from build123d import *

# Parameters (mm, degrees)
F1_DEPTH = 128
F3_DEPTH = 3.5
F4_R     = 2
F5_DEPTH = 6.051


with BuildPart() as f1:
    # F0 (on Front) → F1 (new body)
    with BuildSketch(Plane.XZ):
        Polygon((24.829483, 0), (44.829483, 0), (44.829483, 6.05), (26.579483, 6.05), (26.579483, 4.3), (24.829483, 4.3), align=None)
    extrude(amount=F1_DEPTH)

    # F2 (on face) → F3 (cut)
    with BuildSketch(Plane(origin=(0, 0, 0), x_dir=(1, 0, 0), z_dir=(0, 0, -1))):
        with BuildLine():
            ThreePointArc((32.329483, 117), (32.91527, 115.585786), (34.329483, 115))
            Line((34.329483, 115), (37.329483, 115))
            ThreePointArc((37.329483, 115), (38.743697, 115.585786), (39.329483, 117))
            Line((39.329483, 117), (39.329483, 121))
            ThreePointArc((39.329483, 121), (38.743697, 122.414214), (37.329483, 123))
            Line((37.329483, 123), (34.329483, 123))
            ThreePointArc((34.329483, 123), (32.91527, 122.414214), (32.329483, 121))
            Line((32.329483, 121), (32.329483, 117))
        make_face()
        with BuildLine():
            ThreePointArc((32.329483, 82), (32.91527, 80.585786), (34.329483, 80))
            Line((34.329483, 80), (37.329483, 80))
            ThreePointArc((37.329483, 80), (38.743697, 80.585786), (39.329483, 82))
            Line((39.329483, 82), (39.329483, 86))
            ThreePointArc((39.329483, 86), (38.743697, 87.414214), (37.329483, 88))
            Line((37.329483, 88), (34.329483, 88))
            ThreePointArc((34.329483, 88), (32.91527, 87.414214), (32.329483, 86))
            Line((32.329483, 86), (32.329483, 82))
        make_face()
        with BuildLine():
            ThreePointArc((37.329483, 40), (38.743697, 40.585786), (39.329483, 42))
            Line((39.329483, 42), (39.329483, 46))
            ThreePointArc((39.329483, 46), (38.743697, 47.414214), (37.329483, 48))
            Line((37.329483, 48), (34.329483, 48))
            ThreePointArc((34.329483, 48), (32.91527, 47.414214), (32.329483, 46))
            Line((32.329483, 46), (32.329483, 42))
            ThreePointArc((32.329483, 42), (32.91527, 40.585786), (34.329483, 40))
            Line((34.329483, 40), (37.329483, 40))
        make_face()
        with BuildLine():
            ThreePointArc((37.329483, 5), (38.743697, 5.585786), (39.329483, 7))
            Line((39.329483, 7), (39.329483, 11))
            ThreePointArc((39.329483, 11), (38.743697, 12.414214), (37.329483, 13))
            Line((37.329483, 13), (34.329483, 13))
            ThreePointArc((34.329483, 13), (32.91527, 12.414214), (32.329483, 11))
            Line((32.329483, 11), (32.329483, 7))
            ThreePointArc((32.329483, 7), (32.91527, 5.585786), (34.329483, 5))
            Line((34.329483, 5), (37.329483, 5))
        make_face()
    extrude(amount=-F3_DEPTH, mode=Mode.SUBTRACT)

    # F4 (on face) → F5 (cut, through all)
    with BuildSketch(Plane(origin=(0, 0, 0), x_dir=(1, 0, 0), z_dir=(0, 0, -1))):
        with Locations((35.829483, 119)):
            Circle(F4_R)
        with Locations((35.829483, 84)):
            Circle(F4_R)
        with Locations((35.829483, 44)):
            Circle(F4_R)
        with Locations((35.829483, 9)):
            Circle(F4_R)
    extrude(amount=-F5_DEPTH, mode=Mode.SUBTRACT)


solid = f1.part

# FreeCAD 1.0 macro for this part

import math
import FreeCAD as App
import Part
import Sketcher
from FreeCAD import Vector


def add_polygon(sketch, points):
    """Adds a closed chain of lines whose ends are joined by coincident constraints."""
    first, n = sketch.GeometryCount, len(points)
    for a, b in zip(points, points[1:] + points[:1]):
        sketch.addGeometry(Part.LineSegment(App.Vector(*a, 0), App.Vector(*b, 0)), False)
    for i in range(n):
        sketch.addConstraint(Sketcher.Constraint("Coincident", first + i, 2, first + (i + 1) % n, 1))

doc = App.newDocument("Part")
params = doc.addObject("Spreadsheet::Sheet", "Params")
for row, (alias, value) in enumerate([
    ("sketch1_width", "20 mm"),
    ("sketch1_height", "4.3 mm"),
    ("sketch1_width2", "18.25 mm"),
    ("pad1_length", "128 mm"),
    ("sketch2_radius", "2 mm"),
    ("sketch2_width", "3 mm"),
    ("sketch2_height", "4 mm"),
    ("pocket1_length", "3.5 mm"),
    ("sketch3_diameter", "4 mm"),
], start=1):
    params.set(f"A{row}", alias)
    params.set(f"B{row}", "=" + value)
    params.setAlias(f"B{row}", alias)

body = doc.addObject("PartDesign::Body", "Body")

# Sketch on XZ plane
sketch1 = body.newObject("Sketcher::SketchObject", "Sketch")
sketch1.AttachmentSupport = (doc.getObject("XZ_Plane"), [""])
sketch1.MapMode = "FlatFace"
add_polygon(sketch1, [(24.8, 0), (44.8, 0), (44.8, 6), (26.6, 6), (26.6, 4.3), (24.8, 4.3)])  # lines 0-5
sketch1.addConstraint(Sketcher.Constraint("Horizontal", 0))
sketch1.addConstraint(Sketcher.Constraint("Vertical", 1))
sketch1.addConstraint(Sketcher.Constraint("Horizontal", 2))
sketch1.addConstraint(Sketcher.Constraint("Vertical", 3))
sketch1.addConstraint(Sketcher.Constraint("Horizontal", 4))
sketch1.addConstraint(Sketcher.Constraint("Vertical", 5))
sketch1.addConstraint(Sketcher.Constraint("PointOnObject", 0, 2, -1))
sketch1.addConstraint(Sketcher.Constraint("Equal", 4, 3))
sketch1.addConstraint(Sketcher.Constraint("DistanceX", 0, 1, 0, 2, 20.0))
sketch1.addConstraint(Sketcher.Constraint("DistanceY", 5, 2, 5, 1, 4.3))
sketch1.addConstraint(Sketcher.Constraint("DistanceX", 2, 2, 2, 1, 18.25))
sketch1.addConstraint(Sketcher.Constraint("DistanceX", -1, 1, 0, 2, 44.829483))
sketch1.setExpression("Constraints[14]", "Params.sketch1_width")
sketch1.setExpression("Constraints[15]", "Params.sketch1_height")
sketch1.setExpression("Constraints[16]", "Params.sketch1_width2")
pad1 = body.newObject("PartDesign::Pad", "Pad")
pad1.Profile = sketch1
pad1.setExpression("Length", "Params.pad1_length")

# Sketch on XY plane
sketch2 = body.newObject("Sketcher::SketchObject", "Sketch001")
sketch2.AttachmentSupport = (doc.getObject("XY_Plane"), [""])
sketch2.MapMode = "FlatFace"
sketch2.addGeometry(Part.ArcOfCircle(Part.Circle(Vector(34.3, -117, 0), Vector(0, 0, 1), 2), math.radians(90), math.radians(180)), False)
sketch2.addGeometry(Part.LineSegment(Vector(34.3, -115, 0), Vector(37.3, -115, 0)), False)
sketch2.addGeometry(Part.ArcOfCircle(Part.Circle(Vector(37.3, -117, 0), Vector(0, 0, 1), 2), math.radians(0), math.radians(90)), False)
sketch2.addGeometry(Part.LineSegment(Vector(39.3, -117, 0), Vector(39.3, -121, 0)), False)
sketch2.addGeometry(Part.ArcOfCircle(Part.Circle(Vector(37.3, -121, 0), Vector(0, 0, 1), 2), math.radians(-90), math.radians(0)), False)
sketch2.addGeometry(Part.LineSegment(Vector(37.3, -123, 0), Vector(34.3, -123, 0)), False)
sketch2.addGeometry(Part.ArcOfCircle(Part.Circle(Vector(34.3, -121, 0), Vector(0, 0, 1), 2), math.radians(-180), math.radians(-90)), False)
sketch2.addGeometry(Part.LineSegment(Vector(32.3, -121, 0), Vector(32.3, -117, 0)), False)
sketch2.addGeometry(Part.ArcOfCircle(Part.Circle(Vector(34.3, -82, 0), Vector(0, 0, 1), 2), math.radians(90), math.radians(180)), False)
sketch2.addGeometry(Part.LineSegment(Vector(34.3, -80, 0), Vector(37.3, -80, 0)), False)
sketch2.addGeometry(Part.ArcOfCircle(Part.Circle(Vector(37.3, -82, 0), Vector(0, 0, 1), 2), math.radians(0), math.radians(90)), False)
sketch2.addGeometry(Part.LineSegment(Vector(39.3, -82, 0), Vector(39.3, -86, 0)), False)
sketch2.addGeometry(Part.ArcOfCircle(Part.Circle(Vector(37.3, -86, 0), Vector(0, 0, 1), 2), math.radians(-90), math.radians(0)), False)
sketch2.addGeometry(Part.LineSegment(Vector(37.3, -88, 0), Vector(34.3, -88, 0)), False)
sketch2.addGeometry(Part.ArcOfCircle(Part.Circle(Vector(34.3, -86, 0), Vector(0, 0, 1), 2), math.radians(-180), math.radians(-90)), False)
sketch2.addGeometry(Part.LineSegment(Vector(32.3, -86, 0), Vector(32.3, -82, 0)), False)
sketch2.addGeometry(Part.ArcOfCircle(Part.Circle(Vector(37.3, -42, 0), Vector(0, 0, 1), 2), math.radians(0), math.radians(90)), False)
sketch2.addGeometry(Part.LineSegment(Vector(39.3, -42, 0), Vector(39.3, -46, 0)), False)
sketch2.addGeometry(Part.ArcOfCircle(Part.Circle(Vector(37.3, -46, 0), Vector(0, 0, 1), 2), math.radians(-90), math.radians(0)), False)
sketch2.addGeometry(Part.LineSegment(Vector(37.3, -48, 0), Vector(34.3, -48, 0)), False)
sketch2.addGeometry(Part.ArcOfCircle(Part.Circle(Vector(34.3, -46, 0), Vector(0, 0, 1), 2), math.radians(-180), math.radians(-90)), False)
sketch2.addGeometry(Part.LineSegment(Vector(32.3, -46, 0), Vector(32.3, -42, 0)), False)
sketch2.addGeometry(Part.ArcOfCircle(Part.Circle(Vector(34.3, -42, 0), Vector(0, 0, 1), 2), math.radians(90), math.radians(180)), False)
sketch2.addGeometry(Part.LineSegment(Vector(34.3, -40, 0), Vector(37.3, -40, 0)), False)
sketch2.addGeometry(Part.ArcOfCircle(Part.Circle(Vector(37.3, -7, 0), Vector(0, 0, 1), 2), math.radians(0), math.radians(90)), False)
sketch2.addGeometry(Part.LineSegment(Vector(39.3, -7, 0), Vector(39.3, -11, 0)), False)
sketch2.addGeometry(Part.ArcOfCircle(Part.Circle(Vector(37.3, -11, 0), Vector(0, 0, 1), 2), math.radians(-90), math.radians(0)), False)
sketch2.addGeometry(Part.LineSegment(Vector(37.3, -13, 0), Vector(34.3, -13, 0)), False)
sketch2.addGeometry(Part.ArcOfCircle(Part.Circle(Vector(34.3, -11, 0), Vector(0, 0, 1), 2), math.radians(-180), math.radians(-90)), False)
sketch2.addGeometry(Part.LineSegment(Vector(32.3, -11, 0), Vector(32.3, -7, 0)), False)
sketch2.addGeometry(Part.ArcOfCircle(Part.Circle(Vector(34.3, -7, 0), Vector(0, 0, 1), 2), math.radians(90), math.radians(180)), False)
sketch2.addGeometry(Part.LineSegment(Vector(34.3, -5, 0), Vector(37.3, -5, 0)), False)
sketch2.addConstraint(Sketcher.Constraint("Tangent", 0, 1, 1, 1))
sketch2.addConstraint(Sketcher.Constraint("Tangent", 1, 2, 2, 2))
sketch2.addConstraint(Sketcher.Constraint("Tangent", 2, 1, 3, 1))
sketch2.addConstraint(Sketcher.Constraint("Tangent", 3, 2, 4, 2))
sketch2.addConstraint(Sketcher.Constraint("Tangent", 4, 1, 5, 1))
sketch2.addConstraint(Sketcher.Constraint("Tangent", 5, 2, 6, 2))
sketch2.addConstraint(Sketcher.Constraint("Tangent", 6, 1, 7, 1))
sketch2.addConstraint(Sketcher.Constraint("Tangent", 7, 2, 0, 2))
sketch2.addConstraint(Sketcher.Constraint("Tangent", 8, 1, 9, 1))
sketch2.addConstraint(Sketcher.Constraint("Tangent", 9, 2, 10, 2))
sketch2.addConstraint(Sketcher.Constraint("Tangent", 10, 1, 11, 1))
sketch2.addConstraint(Sketcher.Constraint("Tangent", 11, 2, 12, 2))
sketch2.addConstraint(Sketcher.Constraint("Tangent", 12, 1, 13, 1))
sketch2.addConstraint(Sketcher.Constraint("Tangent", 13, 2, 14, 2))
sketch2.addConstraint(Sketcher.Constraint("Tangent", 14, 1, 15, 1))
sketch2.addConstraint(Sketcher.Constraint("Tangent", 15, 2, 8, 2))
sketch2.addConstraint(Sketcher.Constraint("Tangent", 16, 1, 17, 1))
sketch2.addConstraint(Sketcher.Constraint("Tangent", 17, 2, 18, 2))
sketch2.addConstraint(Sketcher.Constraint("Tangent", 18, 1, 19, 1))
sketch2.addConstraint(Sketcher.Constraint("Tangent", 19, 2, 20, 2))
sketch2.addConstraint(Sketcher.Constraint("Tangent", 20, 1, 21, 1))
sketch2.addConstraint(Sketcher.Constraint("Tangent", 21, 2, 22, 2))
sketch2.addConstraint(Sketcher.Constraint("Tangent", 22, 1, 23, 1))
sketch2.addConstraint(Sketcher.Constraint("Tangent", 23, 2, 16, 2))
sketch2.addConstraint(Sketcher.Constraint("Tangent", 24, 1, 25, 1))
sketch2.addConstraint(Sketcher.Constraint("Tangent", 25, 2, 26, 2))
sketch2.addConstraint(Sketcher.Constraint("Tangent", 26, 1, 27, 1))
sketch2.addConstraint(Sketcher.Constraint("Tangent", 27, 2, 28, 2))
sketch2.addConstraint(Sketcher.Constraint("Tangent", 28, 1, 29, 1))
sketch2.addConstraint(Sketcher.Constraint("Tangent", 29, 2, 30, 2))
sketch2.addConstraint(Sketcher.Constraint("Tangent", 30, 1, 31, 1))
sketch2.addConstraint(Sketcher.Constraint("Tangent", 31, 2, 24, 2))
sketch2.addConstraint(Sketcher.Constraint("Horizontal", 1))
sketch2.addConstraint(Sketcher.Constraint("Vertical", 3))
sketch2.addConstraint(Sketcher.Constraint("Horizontal", 5))
sketch2.addConstraint(Sketcher.Constraint("Vertical", 7))
sketch2.addConstraint(Sketcher.Constraint("Horizontal", 9))
sketch2.addConstraint(Sketcher.Constraint("Vertical", 11))
sketch2.addConstraint(Sketcher.Constraint("Horizontal", 13))
sketch2.addConstraint(Sketcher.Constraint("Vertical", 15))
sketch2.addConstraint(Sketcher.Constraint("Vertical", 17))
sketch2.addConstraint(Sketcher.Constraint("Horizontal", 19))
sketch2.addConstraint(Sketcher.Constraint("Vertical", 21))
sketch2.addConstraint(Sketcher.Constraint("Horizontal", 23))
sketch2.addConstraint(Sketcher.Constraint("Vertical", 25))
sketch2.addConstraint(Sketcher.Constraint("Horizontal", 27))
sketch2.addConstraint(Sketcher.Constraint("Vertical", 29))
sketch2.addConstraint(Sketcher.Constraint("Horizontal", 31))
sketch2.addConstraint(Sketcher.Constraint("Equal", 0, 2))
sketch2.addConstraint(Sketcher.Constraint("Equal", 2, 4))
sketch2.addConstraint(Sketcher.Constraint("Equal", 4, 6))
sketch2.addConstraint(Sketcher.Constraint("Equal", 6, 8))
sketch2.addConstraint(Sketcher.Constraint("Equal", 8, 10))
sketch2.addConstraint(Sketcher.Constraint("Equal", 10, 12))
sketch2.addConstraint(Sketcher.Constraint("Equal", 12, 14))
sketch2.addConstraint(Sketcher.Constraint("Equal", 14, 16))
sketch2.addConstraint(Sketcher.Constraint("Equal", 16, 18))
sketch2.addConstraint(Sketcher.Constraint("Equal", 18, 20))
sketch2.addConstraint(Sketcher.Constraint("Equal", 20, 22))
sketch2.addConstraint(Sketcher.Constraint("Equal", 22, 24))
sketch2.addConstraint(Sketcher.Constraint("Equal", 24, 26))
sketch2.addConstraint(Sketcher.Constraint("Equal", 26, 28))
sketch2.addConstraint(Sketcher.Constraint("Equal", 28, 30))
sketch2.addConstraint(Sketcher.Constraint("Vertical", 6, 3, 8, 3))
sketch2.addConstraint(Sketcher.Constraint("Vertical", 4, 3, 10, 3))
sketch2.addConstraint(Sketcher.Constraint("Vertical", 12, 3, 16, 3))
sketch2.addConstraint(Sketcher.Constraint("Vertical", 14, 3, 20, 3))
sketch2.addConstraint(Sketcher.Constraint("Vertical", 18, 3, 24, 3))
sketch2.addConstraint(Sketcher.Constraint("Vertical", 22, 3, 28, 3))
sketch2.addConstraint(Sketcher.Constraint("Equal", 7, 11))
sketch2.addConstraint(Sketcher.Constraint("Equal", 15, 17))
sketch2.addConstraint(Sketcher.Constraint("Equal", 21, 25))
sketch2.addConstraint(Sketcher.Constraint("Radius", 0, 2.0))
sketch2.addConstraint(Sketcher.Constraint("DistanceX", 1, 1, 1, 2, 3.0))
sketch2.addConstraint(Sketcher.Constraint("DistanceY", 3, 2, 3, 1, 4.0))
sketch2.addConstraint(Sketcher.Constraint("DistanceY", 0, 3, -1, 1, 117.0))
sketch2.addConstraint(Sketcher.Constraint("DistanceY", 8, 3, -1, 1, 82.0))
sketch2.addConstraint(Sketcher.Constraint("DistanceY", 16, 3, -1, 1, 41.999999))
sketch2.addConstraint(Sketcher.Constraint("DistanceY", 24, 3, -1, 1, 6.999999))
sketch2.addConstraint(Sketcher.Constraint("DistanceX", -1, 1, 0, 3, 34.329483))
sketch2.setExpression("Constraints[72]", "Params.sketch2_radius")
sketch2.setExpression("Constraints[73]", "Params.sketch2_width")
sketch2.setExpression("Constraints[74]", "Params.sketch2_height")
pocket1 = body.newObject("PartDesign::Pocket", "Pocket")
pocket1.Profile = sketch2
pocket1.setExpression("Length", "Params.pocket1_length")
pocket1.Reversed = True

# Sketch on XY plane
sketch3 = body.newObject("Sketcher::SketchObject", "Sketch002")
sketch3.AttachmentSupport = (doc.getObject("XY_Plane"), [""])
sketch3.MapMode = "FlatFace"
sketch3.addGeometry(Part.Circle(Vector(35.8, -119, 0), Vector(0, 0, 1), 2), False)
sketch3.addGeometry(Part.Circle(Vector(35.8, -84, 0), Vector(0, 0, 1), 2), False)
sketch3.addGeometry(Part.Circle(Vector(35.8, -44, 0), Vector(0, 0, 1), 2), False)
sketch3.addGeometry(Part.Circle(Vector(35.8, -9, 0), Vector(0, 0, 1), 2), False)
sketch3.addConstraint(Sketcher.Constraint("Equal", 0, 1))
sketch3.addConstraint(Sketcher.Constraint("Equal", 1, 2))
sketch3.addConstraint(Sketcher.Constraint("Equal", 2, 3))
sketch3.addConstraint(Sketcher.Constraint("Vertical", 0, 3, 1, 3))
sketch3.addConstraint(Sketcher.Constraint("Vertical", 1, 3, 2, 3))
sketch3.addConstraint(Sketcher.Constraint("Vertical", 2, 3, 3, 3))
sketch3.addConstraint(Sketcher.Constraint("Diameter", 0, 4.0))
sketch3.addConstraint(Sketcher.Constraint("DistanceY", 0, 3, -1, 1, 119.0))
sketch3.addConstraint(Sketcher.Constraint("DistanceY", 1, 3, -1, 1, 84.0))
sketch3.addConstraint(Sketcher.Constraint("DistanceY", 2, 3, -1, 1, 44.0))
sketch3.addConstraint(Sketcher.Constraint("DistanceY", 3, 3, -1, 1, 9.0))
sketch3.addConstraint(Sketcher.Constraint("DistanceX", -1, 1, 0, 3, 35.829483))
sketch3.setExpression("Constraints[6]", "Params.sketch3_diameter")
pocket2 = body.newObject("PartDesign::Pocket", "Pocket001")
pocket2.Profile = sketch3
pocket2.Type = "ThroughAll"
pocket2.Reversed = True

doc.recompute()
